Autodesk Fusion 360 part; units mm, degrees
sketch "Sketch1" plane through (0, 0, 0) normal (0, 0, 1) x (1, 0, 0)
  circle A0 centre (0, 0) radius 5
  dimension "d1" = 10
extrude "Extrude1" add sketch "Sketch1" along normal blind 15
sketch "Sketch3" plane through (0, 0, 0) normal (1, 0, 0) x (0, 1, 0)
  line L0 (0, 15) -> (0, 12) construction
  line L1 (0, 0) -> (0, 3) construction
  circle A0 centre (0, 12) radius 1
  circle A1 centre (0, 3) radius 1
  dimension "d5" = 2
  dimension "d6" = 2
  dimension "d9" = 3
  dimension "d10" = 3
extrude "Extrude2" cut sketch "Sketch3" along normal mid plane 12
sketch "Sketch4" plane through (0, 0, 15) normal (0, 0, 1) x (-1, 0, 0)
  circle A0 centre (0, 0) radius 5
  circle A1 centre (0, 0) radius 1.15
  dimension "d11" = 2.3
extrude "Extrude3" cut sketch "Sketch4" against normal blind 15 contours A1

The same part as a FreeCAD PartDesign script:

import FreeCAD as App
import Part
import Sketcher

V = App.Vector
Q = App.Units.Quantity

doc = App.newDocument("Part")
body = doc.addObject("PartDesign::Body", "Body")

sketch1 = body.newObject("Sketcher::SketchObject", "Sketch")
sketch1.AttachmentSupport = (doc.getObject("XY_Plane"), [""])
sketch1.MapMode = "FlatFace"
sketch1.addGeometry(Part.Circle(V(0, 0, 0), V(0, 0, 1), 5), False)
sketch1.addConstraint([
    Sketcher.Constraint("Coincident", 0, 3, -1, 1),
    Sketcher.Constraint("Diameter", 0, Q("10 mm")),
])
pad1 = body.newObject("PartDesign::Pad", "Pad")
pad1.Profile = sketch1
pad1.Length = 15

sketch2 = body.newObject("Sketcher::SketchObject", "Sketch001")
sketch2.AttachmentSupport = (doc.getObject("YZ_Plane"), [""])
sketch2.MapMode = "FlatFace"
sketch2.addGeometry([
    Part.Circle(V(0, 12, 0), V(0, 0, 1), 1),
    Part.Circle(V(0, 3, 0), V(0, 0, 1), 1),
], False)
sketch2.addConstraint([
    Sketcher.Constraint("Equal", 0, 1),
    Sketcher.Constraint("PointOnObject", 0, 3, -2),
    Sketcher.Constraint("PointOnObject", 1, 3, -2),
    Sketcher.Constraint("Diameter", 0, Q("2 mm")),
    Sketcher.Constraint("DistanceY", -1, 1, 1, 3, Q("3 mm")),
    Sketcher.Constraint("DistanceY", -1, 1, 0, 3, Q("12 mm")),
])
pocket1 = body.newObject("PartDesign::Pocket", "Pocket")
pocket1.Profile = sketch2
pocket1.Length = 12
pocket1.Midplane = True

sketch3 = body.newObject("Sketcher::SketchObject", "Sketch002")
sketch3.AttachmentSupport = (doc.getObject("XY_Plane"), [""])
sketch3.MapMode = "FlatFace"
sketch3.AttachmentOffset = App.Placement(V(0, 0, 15), App.Rotation())
sketch3.addGeometry(Part.Circle(V(0, 0, 0), V(0, 0, 1), 1.15), False)
sketch3.addConstraint([
    Sketcher.Constraint("Coincident", 0, 3, -1, 1),
    Sketcher.Constraint("Diameter", 0, Q("2.3 mm")),
])
pocket2 = body.newObject("PartDesign::Pocket", "Pocket001")
pocket2.Profile = sketch3
pocket2.Length = 15

doc.recompute()
